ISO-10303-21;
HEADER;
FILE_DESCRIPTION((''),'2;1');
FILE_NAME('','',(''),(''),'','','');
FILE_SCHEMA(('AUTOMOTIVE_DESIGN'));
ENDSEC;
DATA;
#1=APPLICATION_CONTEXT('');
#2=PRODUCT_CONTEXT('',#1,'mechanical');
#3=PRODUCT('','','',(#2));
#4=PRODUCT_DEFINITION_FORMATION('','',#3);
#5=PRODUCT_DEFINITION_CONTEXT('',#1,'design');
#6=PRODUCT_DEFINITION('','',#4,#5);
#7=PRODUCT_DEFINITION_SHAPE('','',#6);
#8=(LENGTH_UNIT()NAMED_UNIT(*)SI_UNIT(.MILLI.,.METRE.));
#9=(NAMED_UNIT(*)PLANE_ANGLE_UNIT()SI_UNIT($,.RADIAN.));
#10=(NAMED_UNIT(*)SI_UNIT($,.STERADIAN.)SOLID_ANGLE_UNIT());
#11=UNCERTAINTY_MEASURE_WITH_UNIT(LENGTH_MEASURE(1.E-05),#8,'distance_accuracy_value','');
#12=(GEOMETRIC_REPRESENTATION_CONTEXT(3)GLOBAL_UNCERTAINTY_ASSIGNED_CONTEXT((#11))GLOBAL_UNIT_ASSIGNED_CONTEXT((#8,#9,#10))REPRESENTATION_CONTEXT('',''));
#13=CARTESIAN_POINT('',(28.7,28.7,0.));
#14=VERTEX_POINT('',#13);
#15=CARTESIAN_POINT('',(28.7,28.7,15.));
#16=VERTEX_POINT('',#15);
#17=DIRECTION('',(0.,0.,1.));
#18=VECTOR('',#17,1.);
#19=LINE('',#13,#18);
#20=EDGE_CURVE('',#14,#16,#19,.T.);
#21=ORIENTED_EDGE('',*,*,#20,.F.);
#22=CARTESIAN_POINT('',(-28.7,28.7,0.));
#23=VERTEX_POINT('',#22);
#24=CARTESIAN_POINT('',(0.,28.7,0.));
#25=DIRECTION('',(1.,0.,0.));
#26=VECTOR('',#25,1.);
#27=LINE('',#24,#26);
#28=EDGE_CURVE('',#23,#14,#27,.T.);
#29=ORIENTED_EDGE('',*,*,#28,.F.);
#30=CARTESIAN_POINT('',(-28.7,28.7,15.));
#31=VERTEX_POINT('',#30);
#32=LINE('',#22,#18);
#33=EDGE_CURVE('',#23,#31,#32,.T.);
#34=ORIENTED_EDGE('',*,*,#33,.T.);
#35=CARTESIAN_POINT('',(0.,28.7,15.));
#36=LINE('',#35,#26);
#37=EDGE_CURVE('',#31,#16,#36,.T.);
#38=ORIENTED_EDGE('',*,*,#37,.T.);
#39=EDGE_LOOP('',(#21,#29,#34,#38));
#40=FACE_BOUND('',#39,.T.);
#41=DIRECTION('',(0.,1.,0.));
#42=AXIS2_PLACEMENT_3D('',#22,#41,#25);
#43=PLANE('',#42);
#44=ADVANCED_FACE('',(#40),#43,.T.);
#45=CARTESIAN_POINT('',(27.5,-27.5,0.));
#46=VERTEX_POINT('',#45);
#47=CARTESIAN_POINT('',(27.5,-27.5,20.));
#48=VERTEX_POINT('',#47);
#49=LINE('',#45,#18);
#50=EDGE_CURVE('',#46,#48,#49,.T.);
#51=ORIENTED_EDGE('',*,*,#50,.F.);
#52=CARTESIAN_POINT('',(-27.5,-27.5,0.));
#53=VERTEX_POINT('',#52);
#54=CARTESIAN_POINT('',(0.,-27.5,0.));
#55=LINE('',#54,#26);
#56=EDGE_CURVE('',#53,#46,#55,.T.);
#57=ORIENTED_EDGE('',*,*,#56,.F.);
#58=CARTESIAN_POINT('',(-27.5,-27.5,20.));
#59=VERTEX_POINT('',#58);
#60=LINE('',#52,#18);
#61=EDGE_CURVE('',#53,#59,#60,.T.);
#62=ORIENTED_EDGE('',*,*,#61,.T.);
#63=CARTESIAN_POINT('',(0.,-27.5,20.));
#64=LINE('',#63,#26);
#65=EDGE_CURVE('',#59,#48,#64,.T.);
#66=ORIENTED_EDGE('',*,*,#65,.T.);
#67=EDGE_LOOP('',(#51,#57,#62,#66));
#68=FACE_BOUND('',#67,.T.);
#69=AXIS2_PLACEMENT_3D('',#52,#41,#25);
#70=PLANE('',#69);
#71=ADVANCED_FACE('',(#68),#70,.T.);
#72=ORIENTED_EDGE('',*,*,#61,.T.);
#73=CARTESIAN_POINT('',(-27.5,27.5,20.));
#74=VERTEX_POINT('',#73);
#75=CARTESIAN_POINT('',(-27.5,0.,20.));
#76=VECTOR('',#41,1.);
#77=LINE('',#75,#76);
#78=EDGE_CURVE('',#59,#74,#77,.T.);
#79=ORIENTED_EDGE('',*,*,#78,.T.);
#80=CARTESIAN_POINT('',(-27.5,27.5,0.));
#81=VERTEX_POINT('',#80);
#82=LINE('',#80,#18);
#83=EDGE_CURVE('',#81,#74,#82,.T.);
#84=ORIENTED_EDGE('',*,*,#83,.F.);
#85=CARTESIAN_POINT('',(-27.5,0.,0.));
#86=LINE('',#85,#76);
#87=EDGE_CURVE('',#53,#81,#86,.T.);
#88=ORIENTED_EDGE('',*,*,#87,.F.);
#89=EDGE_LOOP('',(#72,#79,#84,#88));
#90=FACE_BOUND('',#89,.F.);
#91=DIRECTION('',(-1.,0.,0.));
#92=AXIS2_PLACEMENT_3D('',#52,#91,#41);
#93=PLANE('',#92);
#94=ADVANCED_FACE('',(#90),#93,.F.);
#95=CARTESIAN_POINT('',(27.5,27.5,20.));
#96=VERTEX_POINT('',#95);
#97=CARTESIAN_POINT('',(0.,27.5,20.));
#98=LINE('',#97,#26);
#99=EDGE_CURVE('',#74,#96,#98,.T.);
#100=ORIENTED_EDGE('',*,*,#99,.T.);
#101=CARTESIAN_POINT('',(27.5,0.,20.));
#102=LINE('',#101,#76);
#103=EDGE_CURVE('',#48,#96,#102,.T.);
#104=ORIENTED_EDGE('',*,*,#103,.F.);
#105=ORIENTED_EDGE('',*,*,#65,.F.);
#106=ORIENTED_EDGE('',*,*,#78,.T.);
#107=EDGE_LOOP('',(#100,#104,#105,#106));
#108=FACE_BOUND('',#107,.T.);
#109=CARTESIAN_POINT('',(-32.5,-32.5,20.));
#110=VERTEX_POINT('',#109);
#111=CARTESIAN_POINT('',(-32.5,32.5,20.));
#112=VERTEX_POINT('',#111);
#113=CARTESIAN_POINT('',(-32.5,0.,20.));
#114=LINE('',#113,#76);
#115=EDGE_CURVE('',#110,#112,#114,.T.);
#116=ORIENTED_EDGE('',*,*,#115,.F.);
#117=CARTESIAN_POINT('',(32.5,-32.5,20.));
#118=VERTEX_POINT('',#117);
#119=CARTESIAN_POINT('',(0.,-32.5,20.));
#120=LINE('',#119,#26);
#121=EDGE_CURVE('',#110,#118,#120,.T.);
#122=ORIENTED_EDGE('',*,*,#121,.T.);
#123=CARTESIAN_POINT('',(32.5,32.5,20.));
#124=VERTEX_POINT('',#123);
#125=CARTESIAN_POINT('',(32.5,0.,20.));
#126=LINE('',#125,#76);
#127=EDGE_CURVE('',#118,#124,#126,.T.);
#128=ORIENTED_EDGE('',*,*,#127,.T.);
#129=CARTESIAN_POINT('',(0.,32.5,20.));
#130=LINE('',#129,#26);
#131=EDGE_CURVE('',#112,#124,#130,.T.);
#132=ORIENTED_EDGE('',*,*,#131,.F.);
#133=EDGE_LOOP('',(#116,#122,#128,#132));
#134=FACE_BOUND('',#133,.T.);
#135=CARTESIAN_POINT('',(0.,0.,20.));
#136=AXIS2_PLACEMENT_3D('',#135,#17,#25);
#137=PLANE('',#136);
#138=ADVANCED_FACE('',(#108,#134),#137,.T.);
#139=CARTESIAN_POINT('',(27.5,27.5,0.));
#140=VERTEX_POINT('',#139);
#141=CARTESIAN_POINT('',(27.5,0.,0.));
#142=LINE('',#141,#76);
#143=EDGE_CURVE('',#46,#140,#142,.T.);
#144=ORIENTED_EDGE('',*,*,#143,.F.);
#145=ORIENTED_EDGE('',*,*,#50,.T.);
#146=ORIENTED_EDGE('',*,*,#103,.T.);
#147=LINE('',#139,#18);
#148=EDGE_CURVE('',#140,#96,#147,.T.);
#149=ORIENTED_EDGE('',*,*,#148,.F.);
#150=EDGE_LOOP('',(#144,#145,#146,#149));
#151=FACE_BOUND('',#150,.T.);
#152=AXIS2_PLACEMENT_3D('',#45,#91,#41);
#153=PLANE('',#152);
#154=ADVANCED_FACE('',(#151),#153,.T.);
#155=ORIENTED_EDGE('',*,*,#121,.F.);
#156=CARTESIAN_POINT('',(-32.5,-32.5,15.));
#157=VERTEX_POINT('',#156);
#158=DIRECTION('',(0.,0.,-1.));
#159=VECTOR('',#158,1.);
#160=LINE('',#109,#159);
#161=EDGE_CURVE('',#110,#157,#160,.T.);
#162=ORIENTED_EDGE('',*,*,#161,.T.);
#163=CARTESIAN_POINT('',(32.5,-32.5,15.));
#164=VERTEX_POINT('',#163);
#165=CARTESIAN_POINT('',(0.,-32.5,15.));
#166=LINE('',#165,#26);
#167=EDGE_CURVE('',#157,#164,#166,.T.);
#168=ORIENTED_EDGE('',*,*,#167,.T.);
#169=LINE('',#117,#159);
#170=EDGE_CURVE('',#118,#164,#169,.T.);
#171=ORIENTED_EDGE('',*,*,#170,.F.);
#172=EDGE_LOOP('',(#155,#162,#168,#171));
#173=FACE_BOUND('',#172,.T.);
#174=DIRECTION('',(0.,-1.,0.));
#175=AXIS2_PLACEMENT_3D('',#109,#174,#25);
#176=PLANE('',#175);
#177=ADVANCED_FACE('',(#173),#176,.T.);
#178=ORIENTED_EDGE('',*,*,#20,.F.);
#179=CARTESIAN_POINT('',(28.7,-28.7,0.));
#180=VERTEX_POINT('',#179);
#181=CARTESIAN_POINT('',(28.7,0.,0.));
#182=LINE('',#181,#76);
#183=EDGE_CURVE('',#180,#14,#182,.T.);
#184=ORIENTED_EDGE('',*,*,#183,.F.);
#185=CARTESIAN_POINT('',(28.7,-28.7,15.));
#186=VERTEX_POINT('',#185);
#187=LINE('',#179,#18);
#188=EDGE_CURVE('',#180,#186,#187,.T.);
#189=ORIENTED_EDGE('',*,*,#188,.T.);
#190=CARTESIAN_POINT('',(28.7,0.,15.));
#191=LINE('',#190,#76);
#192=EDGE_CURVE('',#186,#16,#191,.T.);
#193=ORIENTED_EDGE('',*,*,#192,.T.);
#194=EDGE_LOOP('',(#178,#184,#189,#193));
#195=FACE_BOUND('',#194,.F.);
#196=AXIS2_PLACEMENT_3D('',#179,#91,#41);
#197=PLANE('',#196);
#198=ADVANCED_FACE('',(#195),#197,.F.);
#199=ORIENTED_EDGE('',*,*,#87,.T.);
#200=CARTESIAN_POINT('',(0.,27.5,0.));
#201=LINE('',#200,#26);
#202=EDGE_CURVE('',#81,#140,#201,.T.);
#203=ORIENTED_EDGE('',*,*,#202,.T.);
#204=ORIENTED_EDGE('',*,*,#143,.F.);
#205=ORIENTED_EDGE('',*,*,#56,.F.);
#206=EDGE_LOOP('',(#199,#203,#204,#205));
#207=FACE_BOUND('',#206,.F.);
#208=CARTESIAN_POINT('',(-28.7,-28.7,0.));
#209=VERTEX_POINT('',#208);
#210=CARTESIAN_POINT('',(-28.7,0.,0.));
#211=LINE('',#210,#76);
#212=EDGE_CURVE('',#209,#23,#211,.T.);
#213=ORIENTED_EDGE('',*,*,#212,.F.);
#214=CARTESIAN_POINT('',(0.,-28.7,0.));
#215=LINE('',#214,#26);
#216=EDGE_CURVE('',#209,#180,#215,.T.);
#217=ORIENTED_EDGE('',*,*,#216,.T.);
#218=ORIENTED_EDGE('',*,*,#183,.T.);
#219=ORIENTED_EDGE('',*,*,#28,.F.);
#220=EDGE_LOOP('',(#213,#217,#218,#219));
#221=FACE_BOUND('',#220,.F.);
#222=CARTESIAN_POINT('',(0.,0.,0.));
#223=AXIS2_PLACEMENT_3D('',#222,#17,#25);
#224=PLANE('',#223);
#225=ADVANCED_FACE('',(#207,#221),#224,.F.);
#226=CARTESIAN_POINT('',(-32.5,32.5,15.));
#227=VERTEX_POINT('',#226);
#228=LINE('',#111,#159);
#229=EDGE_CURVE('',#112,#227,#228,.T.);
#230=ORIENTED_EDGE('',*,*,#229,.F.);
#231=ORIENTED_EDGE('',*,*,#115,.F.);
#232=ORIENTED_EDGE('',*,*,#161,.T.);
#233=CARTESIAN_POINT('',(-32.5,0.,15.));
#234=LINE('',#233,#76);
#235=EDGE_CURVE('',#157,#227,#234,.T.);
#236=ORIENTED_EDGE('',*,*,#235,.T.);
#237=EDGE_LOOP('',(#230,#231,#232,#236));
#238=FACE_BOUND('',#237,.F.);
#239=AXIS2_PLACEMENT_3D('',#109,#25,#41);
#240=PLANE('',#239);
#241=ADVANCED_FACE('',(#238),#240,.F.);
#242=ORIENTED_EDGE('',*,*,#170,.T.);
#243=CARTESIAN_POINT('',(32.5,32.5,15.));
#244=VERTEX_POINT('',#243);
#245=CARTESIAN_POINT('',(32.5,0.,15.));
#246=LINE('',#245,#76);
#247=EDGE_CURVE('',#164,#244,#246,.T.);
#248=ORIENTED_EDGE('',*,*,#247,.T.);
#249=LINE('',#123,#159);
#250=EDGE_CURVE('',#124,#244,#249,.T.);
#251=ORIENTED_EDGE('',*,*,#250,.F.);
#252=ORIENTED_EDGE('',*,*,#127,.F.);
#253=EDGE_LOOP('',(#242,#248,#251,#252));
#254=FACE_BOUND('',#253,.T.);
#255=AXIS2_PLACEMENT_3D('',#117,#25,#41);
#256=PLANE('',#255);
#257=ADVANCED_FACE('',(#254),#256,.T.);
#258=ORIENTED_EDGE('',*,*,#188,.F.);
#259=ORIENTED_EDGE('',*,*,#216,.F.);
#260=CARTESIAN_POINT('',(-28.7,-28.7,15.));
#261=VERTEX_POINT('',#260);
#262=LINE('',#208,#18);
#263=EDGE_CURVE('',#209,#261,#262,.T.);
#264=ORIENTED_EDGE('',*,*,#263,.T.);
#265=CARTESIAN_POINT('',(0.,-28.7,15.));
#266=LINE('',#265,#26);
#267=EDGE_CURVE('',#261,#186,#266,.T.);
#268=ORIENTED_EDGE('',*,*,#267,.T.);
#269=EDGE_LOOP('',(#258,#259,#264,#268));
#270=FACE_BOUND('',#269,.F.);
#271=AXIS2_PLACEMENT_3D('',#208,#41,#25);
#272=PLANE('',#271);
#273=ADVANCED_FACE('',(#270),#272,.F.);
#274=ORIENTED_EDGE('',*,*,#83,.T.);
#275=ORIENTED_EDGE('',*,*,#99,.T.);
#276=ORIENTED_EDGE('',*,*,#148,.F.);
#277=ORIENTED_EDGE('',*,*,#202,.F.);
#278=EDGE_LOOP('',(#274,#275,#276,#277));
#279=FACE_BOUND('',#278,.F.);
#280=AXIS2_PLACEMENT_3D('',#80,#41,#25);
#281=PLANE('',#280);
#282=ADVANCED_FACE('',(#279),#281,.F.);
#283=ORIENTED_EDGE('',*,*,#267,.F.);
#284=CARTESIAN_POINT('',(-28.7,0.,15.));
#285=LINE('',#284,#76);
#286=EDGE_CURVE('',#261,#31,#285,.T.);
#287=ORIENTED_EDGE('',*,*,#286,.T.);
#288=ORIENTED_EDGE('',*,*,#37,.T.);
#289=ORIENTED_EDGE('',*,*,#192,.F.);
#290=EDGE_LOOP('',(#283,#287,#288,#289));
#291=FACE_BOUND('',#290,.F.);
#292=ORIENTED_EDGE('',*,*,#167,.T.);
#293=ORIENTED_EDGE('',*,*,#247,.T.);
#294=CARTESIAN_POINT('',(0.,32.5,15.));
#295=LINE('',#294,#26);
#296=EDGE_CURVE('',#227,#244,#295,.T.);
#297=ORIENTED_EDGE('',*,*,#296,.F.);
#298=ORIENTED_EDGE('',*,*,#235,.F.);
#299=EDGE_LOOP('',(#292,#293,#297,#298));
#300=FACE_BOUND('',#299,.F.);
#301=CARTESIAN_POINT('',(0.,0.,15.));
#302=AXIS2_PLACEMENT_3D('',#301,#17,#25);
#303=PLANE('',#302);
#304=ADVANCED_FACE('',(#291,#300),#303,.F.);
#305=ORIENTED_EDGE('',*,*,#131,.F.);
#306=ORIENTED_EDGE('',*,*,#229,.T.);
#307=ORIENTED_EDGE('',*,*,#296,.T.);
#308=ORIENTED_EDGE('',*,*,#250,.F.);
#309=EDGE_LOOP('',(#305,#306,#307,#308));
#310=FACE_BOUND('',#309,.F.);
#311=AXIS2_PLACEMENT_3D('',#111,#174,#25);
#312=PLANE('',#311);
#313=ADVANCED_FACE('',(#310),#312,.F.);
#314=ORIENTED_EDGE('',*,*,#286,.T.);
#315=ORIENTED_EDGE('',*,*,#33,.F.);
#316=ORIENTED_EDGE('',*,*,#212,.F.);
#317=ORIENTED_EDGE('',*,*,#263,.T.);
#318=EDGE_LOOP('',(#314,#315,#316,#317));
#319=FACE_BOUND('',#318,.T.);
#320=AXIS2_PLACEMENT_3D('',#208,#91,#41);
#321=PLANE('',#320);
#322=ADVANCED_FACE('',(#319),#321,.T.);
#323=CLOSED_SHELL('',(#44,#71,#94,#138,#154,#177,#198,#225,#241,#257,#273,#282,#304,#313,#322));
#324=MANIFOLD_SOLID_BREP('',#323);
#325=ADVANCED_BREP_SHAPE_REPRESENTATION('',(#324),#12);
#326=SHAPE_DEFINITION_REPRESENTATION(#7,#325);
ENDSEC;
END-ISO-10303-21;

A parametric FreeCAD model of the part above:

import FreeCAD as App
import Part
import Sketcher

V = App.Vector

doc = App.newDocument("Part")
body = doc.addObject("PartDesign::Body", "Body")

# Sketch on XY plane
sketch1 = doc.addObject("Sketcher::SketchObject", "Sketch")
body.addObject(sketch1)
sketch1.AttachmentSupport = (doc.XY_Plane, [""])
sketch1.MapMode = "FlatFace"
sketch1.addGeometry([
    Part.LineSegment(V(-29, 29, 0), V(-29, -29, 0)),  # 0
    Part.LineSegment(V(-29, -29, 0), V(29, -29, 0)),  # 1
    Part.LineSegment(V(29, -29, 0), V(29, 29, 0)),  # 2
    Part.LineSegment(V(29, 29, 0), V(-29, 29, 0)),  # 3
    Part.LineSegment(V(28, -28, 0), V(-28, -28, 0)),  # 4
    Part.LineSegment(V(-28, -28, 0), V(-28, 28, 0)),  # 5
    Part.LineSegment(V(-28, 28, 0), V(28, 28, 0)),  # 6
    Part.LineSegment(V(28, 28, 0), V(28, -28, 0)),  # 7
], False)
sketch1.addConstraint([
    Sketcher.Constraint("Coincident", 0, 2, 1, 1),
    Sketcher.Constraint("Coincident", 1, 2, 2, 1),
    Sketcher.Constraint("Coincident", 2, 2, 3, 1),
    Sketcher.Constraint("Coincident", 3, 2, 0, 1),
    Sketcher.Constraint("Coincident", 4, 2, 5, 1),
    Sketcher.Constraint("Coincident", 5, 2, 6, 1),
    Sketcher.Constraint("Coincident", 6, 2, 7, 1),
    Sketcher.Constraint("Coincident", 7, 2, 4, 1),
    Sketcher.Constraint("Vertical", 0),
    Sketcher.Constraint("Horizontal", 1),
    Sketcher.Constraint("Vertical", 2),
    Sketcher.Constraint("Horizontal", 3),
    Sketcher.Constraint("Horizontal", 4),
    Sketcher.Constraint("Vertical", 5),
    Sketcher.Constraint("Horizontal", 6),
    Sketcher.Constraint("Vertical", 7),
    Sketcher.Constraint("Symmetric", 0, 2, 2, 2, -1, 1),
    Sketcher.Constraint("Symmetric", 4, 2, 6, 2, -1, 1),
    Sketcher.Constraint("Equal", 3, 0),
    Sketcher.Constraint("Equal", 6, 5),
    Sketcher.Constraint("DistanceX", 4, 2, 4, 1, 55.0),
    Sketcher.Constraint("DistanceX", 1, 1, 1, 2, 57.4),
])
pad1 = doc.addObject("PartDesign::Pad", "Pad")
body.addObject(pad1)
pad1.Profile = sketch1
pad1.Length = 20

# Sketch on XY plane
sketch2 = doc.addObject("Sketcher::SketchObject", "Sketch001")
body.addObject(sketch2)
sketch2.AttachmentSupport = (doc.XY_Plane, [""])
sketch2.MapMode = "FlatFace"
sketch2.AttachmentOffset = App.Placement(V(0, 0, 20), App.Rotation())
sketch2.addGeometry([
    Part.LineSegment(V(-32, 32, 0), V(-32, -32, 0)),  # 0
    Part.LineSegment(V(-32, -32, 0), V(32, -32, 0)),  # 1
    Part.LineSegment(V(32, -32, 0), V(32, 32, 0)),  # 2
    Part.LineSegment(V(32, 32, 0), V(-32, 32, 0)),  # 3
    Part.LineSegment(V(29, -29, 0), V(-29, -29, 0)),  # 4
    Part.LineSegment(V(-29, -29, 0), V(-29, 29, 0)),  # 5
    Part.LineSegment(V(-29, 29, 0), V(29, 29, 0)),  # 6
    Part.LineSegment(V(29, 29, 0), V(29, -29, 0)),  # 7
], False)
sketch2.addConstraint([
    Sketcher.Constraint("Coincident", 0, 2, 1, 1),
    Sketcher.Constraint("Coincident", 1, 2, 2, 1),
    Sketcher.Constraint("Coincident", 2, 2, 3, 1),
    Sketcher.Constraint("Coincident", 3, 2, 0, 1),
    Sketcher.Constraint("Coincident", 4, 2, 5, 1),
    Sketcher.Constraint("Coincident", 5, 2, 6, 1),
    Sketcher.Constraint("Coincident", 6, 2, 7, 1),
    Sketcher.Constraint("Coincident", 7, 2, 4, 1),
    Sketcher.Constraint("Vertical", 0),
    Sketcher.Constraint("Horizontal", 1),
    Sketcher.Constraint("Vertical", 2),
    Sketcher.Constraint("Horizontal", 3),
    Sketcher.Constraint("Horizontal", 4),
    Sketcher.Constraint("Vertical", 5),
    Sketcher.Constraint("Horizontal", 6),
    Sketcher.Constraint("Vertical", 7),
    Sketcher.Constraint("Symmetric", 0, 2, 2, 2, -1, 1),
    Sketcher.Constraint("Symmetric", 4, 2, 6, 2, -1, 1),
    Sketcher.Constraint("Equal", 3, 0),
    Sketcher.Constraint("Equal", 6, 5),
    Sketcher.Constraint("DistanceX", 1, 1, 1, 2, 65.0),
    Sketcher.Constraint("DistanceX", 4, 2, 4, 1, 57.4),
])
pad2 = doc.addObject("PartDesign::Pad", "Pad001")
body.addObject(pad2)
pad2.Profile = sketch2
pad2.Length = 5
pad2.Reversed = True

doc.recompute()
